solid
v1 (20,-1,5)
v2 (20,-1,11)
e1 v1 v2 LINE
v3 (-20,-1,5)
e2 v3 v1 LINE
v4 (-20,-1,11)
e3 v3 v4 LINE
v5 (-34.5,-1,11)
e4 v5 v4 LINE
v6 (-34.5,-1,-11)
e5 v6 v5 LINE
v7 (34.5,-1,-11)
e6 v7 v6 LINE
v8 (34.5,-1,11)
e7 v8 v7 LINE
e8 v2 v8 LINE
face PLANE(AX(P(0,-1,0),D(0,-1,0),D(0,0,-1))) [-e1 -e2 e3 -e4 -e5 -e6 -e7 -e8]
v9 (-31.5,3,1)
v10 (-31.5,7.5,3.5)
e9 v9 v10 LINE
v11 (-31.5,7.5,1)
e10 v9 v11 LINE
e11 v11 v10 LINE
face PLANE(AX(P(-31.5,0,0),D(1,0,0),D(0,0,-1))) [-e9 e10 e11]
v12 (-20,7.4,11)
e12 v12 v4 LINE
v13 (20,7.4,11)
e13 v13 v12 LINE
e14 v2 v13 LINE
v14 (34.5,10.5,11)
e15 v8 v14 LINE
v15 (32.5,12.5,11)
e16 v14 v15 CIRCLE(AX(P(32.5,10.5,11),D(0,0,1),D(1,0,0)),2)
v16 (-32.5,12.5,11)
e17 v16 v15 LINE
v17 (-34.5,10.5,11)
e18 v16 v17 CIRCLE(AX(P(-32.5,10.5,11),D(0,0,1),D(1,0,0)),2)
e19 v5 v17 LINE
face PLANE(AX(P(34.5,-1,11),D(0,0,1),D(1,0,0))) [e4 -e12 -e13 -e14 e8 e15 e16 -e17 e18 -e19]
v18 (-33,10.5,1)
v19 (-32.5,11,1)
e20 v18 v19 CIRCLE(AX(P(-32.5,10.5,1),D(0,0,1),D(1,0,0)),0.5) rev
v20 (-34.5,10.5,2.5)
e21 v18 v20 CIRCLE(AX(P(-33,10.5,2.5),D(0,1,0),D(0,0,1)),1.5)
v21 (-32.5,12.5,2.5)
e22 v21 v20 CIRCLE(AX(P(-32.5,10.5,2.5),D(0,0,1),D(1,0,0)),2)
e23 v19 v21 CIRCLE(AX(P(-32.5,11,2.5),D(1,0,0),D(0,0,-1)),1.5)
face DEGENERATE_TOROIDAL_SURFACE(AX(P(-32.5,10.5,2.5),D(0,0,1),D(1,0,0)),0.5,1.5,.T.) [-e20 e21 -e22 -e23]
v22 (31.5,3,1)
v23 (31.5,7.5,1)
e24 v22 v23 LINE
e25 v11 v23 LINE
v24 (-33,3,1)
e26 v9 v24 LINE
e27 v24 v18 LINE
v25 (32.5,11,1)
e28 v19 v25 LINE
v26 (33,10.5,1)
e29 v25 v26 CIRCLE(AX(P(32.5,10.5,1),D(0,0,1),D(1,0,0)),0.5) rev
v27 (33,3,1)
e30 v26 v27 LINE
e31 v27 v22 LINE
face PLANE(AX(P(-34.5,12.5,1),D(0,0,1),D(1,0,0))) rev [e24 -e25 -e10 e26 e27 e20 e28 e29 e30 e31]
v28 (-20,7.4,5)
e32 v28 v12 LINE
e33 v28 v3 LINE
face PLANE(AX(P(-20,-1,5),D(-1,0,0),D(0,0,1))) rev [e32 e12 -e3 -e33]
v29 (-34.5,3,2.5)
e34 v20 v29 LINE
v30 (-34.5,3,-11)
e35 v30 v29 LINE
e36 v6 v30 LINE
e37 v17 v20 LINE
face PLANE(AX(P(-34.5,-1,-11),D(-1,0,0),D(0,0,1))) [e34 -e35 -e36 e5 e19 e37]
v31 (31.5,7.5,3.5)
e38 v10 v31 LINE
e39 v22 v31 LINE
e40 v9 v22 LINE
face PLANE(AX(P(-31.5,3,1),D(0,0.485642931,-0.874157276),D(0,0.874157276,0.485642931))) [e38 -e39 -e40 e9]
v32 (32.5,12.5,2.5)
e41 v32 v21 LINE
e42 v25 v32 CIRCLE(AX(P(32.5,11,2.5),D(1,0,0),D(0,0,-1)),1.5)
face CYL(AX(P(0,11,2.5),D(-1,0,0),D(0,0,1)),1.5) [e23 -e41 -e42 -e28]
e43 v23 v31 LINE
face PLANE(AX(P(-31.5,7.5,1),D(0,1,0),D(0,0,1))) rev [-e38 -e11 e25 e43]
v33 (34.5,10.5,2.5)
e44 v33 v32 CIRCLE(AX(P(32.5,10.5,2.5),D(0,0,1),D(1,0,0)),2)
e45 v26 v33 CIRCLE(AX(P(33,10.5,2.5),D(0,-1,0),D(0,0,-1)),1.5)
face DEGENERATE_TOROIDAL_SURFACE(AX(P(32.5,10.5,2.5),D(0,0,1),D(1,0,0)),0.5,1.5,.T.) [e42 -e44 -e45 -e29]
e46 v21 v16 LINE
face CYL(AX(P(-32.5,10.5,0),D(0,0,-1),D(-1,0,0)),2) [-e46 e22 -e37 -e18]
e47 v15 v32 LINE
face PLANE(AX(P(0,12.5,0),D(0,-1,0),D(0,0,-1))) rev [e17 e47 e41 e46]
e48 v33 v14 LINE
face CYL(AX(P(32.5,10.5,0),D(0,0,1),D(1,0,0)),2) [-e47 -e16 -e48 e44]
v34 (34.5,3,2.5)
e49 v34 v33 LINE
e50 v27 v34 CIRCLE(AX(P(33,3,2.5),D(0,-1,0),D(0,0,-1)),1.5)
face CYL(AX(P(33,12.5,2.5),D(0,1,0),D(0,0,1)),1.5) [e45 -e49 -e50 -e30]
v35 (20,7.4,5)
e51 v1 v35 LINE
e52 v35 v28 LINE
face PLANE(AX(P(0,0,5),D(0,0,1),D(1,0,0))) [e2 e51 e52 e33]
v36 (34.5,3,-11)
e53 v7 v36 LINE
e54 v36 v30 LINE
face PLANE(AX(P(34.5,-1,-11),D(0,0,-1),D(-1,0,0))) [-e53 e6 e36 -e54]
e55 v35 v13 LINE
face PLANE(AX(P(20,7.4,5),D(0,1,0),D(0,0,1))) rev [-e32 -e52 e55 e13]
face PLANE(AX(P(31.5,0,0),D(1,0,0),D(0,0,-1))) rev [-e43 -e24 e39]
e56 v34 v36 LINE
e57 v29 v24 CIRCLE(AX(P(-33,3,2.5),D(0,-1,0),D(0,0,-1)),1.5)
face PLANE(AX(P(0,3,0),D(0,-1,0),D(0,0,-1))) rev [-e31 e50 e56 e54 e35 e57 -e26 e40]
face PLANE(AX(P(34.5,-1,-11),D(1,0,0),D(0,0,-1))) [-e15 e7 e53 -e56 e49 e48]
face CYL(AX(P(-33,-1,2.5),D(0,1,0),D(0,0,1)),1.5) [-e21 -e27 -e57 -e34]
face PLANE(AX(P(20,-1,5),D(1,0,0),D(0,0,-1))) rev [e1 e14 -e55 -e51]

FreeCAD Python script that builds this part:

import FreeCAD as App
import Part
import Sketcher


def edges_at(feature, points):
    """Names of the edges that pass closest to the given points."""
    edges = feature.Shape.Edges
    near = lambda p: min(range(len(edges)), key=lambda i: edges[i].distToShape(Part.Vertex(*p))[0])
    return sorted({f"Edge{near(p) + 1}" for p in points})

doc = App.newDocument("Part")
body = doc.addObject("PartDesign::Body", "Body")

sketch1 = body.newObject("Sketcher::SketchObject", "Sketch")
sketch1.AttachmentSupport = (doc.getObject("XZ_Plane"), [""])
sketch1.MapMode = "FlatFace"
sketch1.addGeometry([
    Part.LineSegment(App.Vector(-34, -11, 0), App.Vector(-34, 11, 0)),
    Part.LineSegment(App.Vector(-34, 11, 0), App.Vector(34, 11, 0)),
    Part.LineSegment(App.Vector(34, 11, 0), App.Vector(34, -11, 0)),
    Part.LineSegment(App.Vector(34, -11, 0), App.Vector(-34, -11, 0)),
], False)
sketch1.addConstraint([
    Sketcher.Constraint("Coincident", 0, 2, 1, 1),
    Sketcher.Constraint("Coincident", 1, 2, 2, 1),
    Sketcher.Constraint("Coincident", 2, 2, 3, 1),
    Sketcher.Constraint("Coincident", 3, 2, 0, 1),
    Sketcher.Constraint("Vertical", 0),
    Sketcher.Constraint("Horizontal", 1),
    Sketcher.Constraint("Vertical", 2),
    Sketcher.Constraint("Horizontal", 3),
    Sketcher.Constraint("Symmetric", 0, 2, 2, 2, -1, 1),
    Sketcher.Constraint("DistanceX", 1, 1, 1, 2, 69.0),
    Sketcher.Constraint("DistanceY", 0, 1, 0, 2, 22.0),
])
pad1 = body.newObject("PartDesign::Pad", "Pad")
pad1.Profile = sketch1
pad1.Type = "TwoLengths"
pad1.Length = 3
pad1.Length2 = 1
pad1.Reversed = True

sketch2 = body.newObject("Sketcher::SketchObject", "Sketch001")
sketch2.AttachmentSupport = (doc.getObject("XZ_Plane"), [""])
sketch2.MapMode = "FlatFace"
sketch2.AttachmentOffset = App.Placement(App.Vector(0, 0, -3), App.Rotation())
sketch2.addGeometry([
    Part.LineSegment(App.Vector(-34, 11, 0), App.Vector(34, 11, 0)),
    Part.LineSegment(App.Vector(34, 11, 0), App.Vector(34, 1, 0)),
    Part.LineSegment(App.Vector(34, 1, 0), App.Vector(-34, 1, 0)),
    Part.LineSegment(App.Vector(-34, 1, 0), App.Vector(-34, 11, 0)),
], False)
sketch2.addConstraint([
    Sketcher.Constraint("Coincident", 0, 2, 1, 1),
    Sketcher.Constraint("Coincident", 1, 2, 2, 1),
    Sketcher.Constraint("Coincident", 2, 2, 3, 1),
    Sketcher.Constraint("Coincident", 3, 2, 0, 1),
    Sketcher.Constraint("Horizontal", 0),
    Sketcher.Constraint("Vertical", 1),
    Sketcher.Constraint("Horizontal", 2),
    Sketcher.Constraint("Vertical", 3),
    Sketcher.Constraint("DistanceX", 0, 1, 0, 2, 69.0),
    Sketcher.Constraint("DistanceY", 1, 2, 1, 1, 10.0),
    Sketcher.Constraint("DistanceY", -1, 1, 0, 2, 11.0),
    Sketcher.Constraint("DistanceX", -1, 1, 0, 2, 34.5),
])
pad2 = body.newObject("PartDesign::Pad", "Pad001")
pad2.Profile = sketch2
pad2.Length = 9.5
pad2.Reversed = True

sketch3 = body.newObject("Sketcher::SketchObject", "Sketch002")
sketch3.AttachmentSupport = (doc.getObject("YZ_Plane"), [""])
sketch3.MapMode = "FlatFace"
sketch3.AttachmentOffset = App.Placement(App.Vector(0, 0, 31.5), App.Rotation())
sketch3.addGeometry([
    Part.LineSegment(App.Vector(7.5, 3.5, 0), App.Vector(3, 1, 0)),
    Part.LineSegment(App.Vector(3, 1, 0), App.Vector(7.5, 1, 0)),
    Part.LineSegment(App.Vector(7.5, 1, 0), App.Vector(7.5, 3.5, 0)),
], False)
sketch3.addConstraint([
    Sketcher.Constraint("Coincident", 0, 2, 1, 1),
    Sketcher.Constraint("Coincident", 1, 2, 2, 1),
    Sketcher.Constraint("Coincident", 2, 2, 0, 1),
    Sketcher.Constraint("Horizontal", 1),
    Sketcher.Constraint("Vertical", 2),
    Sketcher.Constraint("DistanceX", 1, 1, 1, 2, 4.5),
    Sketcher.Constraint("DistanceY", 2, 1, 2, 2, 2.5),
    Sketcher.Constraint("DistanceX", -1, 1, 0, 2, 3.0),
    Sketcher.Constraint("DistanceY", -1, 1, 0, 2, 1.0),
])
pocket1 = body.newObject("PartDesign::Pocket", "Pocket")
pocket1.Profile = sketch3
pocket1.Length = 63

sketch4 = body.newObject("Sketcher::SketchObject", "Sketch003")
sketch4.AttachmentSupport = (doc.getObject("XY_Plane"), [""])
sketch4.MapMode = "FlatFace"
sketch4.AttachmentOffset = App.Placement(App.Vector(0, 0, 11), App.Rotation())
sketch4.addGeometry([
    Part.LineSegment(App.Vector(-20, 7, 0), App.Vector(-20, -1, 0)),
    Part.LineSegment(App.Vector(-20, -1, 0), App.Vector(20, -1, 0)),
    Part.LineSegment(App.Vector(20, -1, 0), App.Vector(20, 7, 0)),
    Part.LineSegment(App.Vector(20, 7, 0), App.Vector(-20, 7, 0)),
], False)
sketch4.addConstraint([
    Sketcher.Constraint("Coincident", 0, 2, 1, 1),
    Sketcher.Constraint("Coincident", 1, 2, 2, 1),
    Sketcher.Constraint("Coincident", 2, 2, 3, 1),
    Sketcher.Constraint("Coincident", 3, 2, 0, 1),
    Sketcher.Constraint("Vertical", 0),
    Sketcher.Constraint("Horizontal", 1),
    Sketcher.Constraint("Vertical", 2),
    Sketcher.Constraint("Horizontal", 3),
    Sketcher.Constraint("DistanceX", 1, 1, 1, 2, 40.0),
    Sketcher.Constraint("DistanceY", 0, 2, 0, 1, 8.4),
    Sketcher.Constraint("DistanceX", 0, 2, -1, 1, 20.0),
    Sketcher.Constraint("DistanceY", 0, 2, -1, 1, 1.0),
])
pocket2 = body.newObject("PartDesign::Pocket", "Pocket001")
pocket2.Profile = sketch4
pocket2.Length = 6
doc.recompute()

fillet = body.newObject("PartDesign::Fillet", "Fillet")
fillet.Base = (pocket2, edges_at(pocket2, [(-34.5, 12.5, 6), (34.5, 12.5, 6)]))
fillet.Radius = 2
doc.recompute()

fillet2 = body.newObject("PartDesign::Fillet", "Fillet001")
fillet2.Base = (fillet, edges_at(fillet, [
    (0, 12.5, 1),
    (-34.5, 6.75, 1),
    (34.5, 6.75, 1),
    (33.914, 11.914, 1),
    (-33.914, 11.914, 1),
]))
fillet2.Radius = 1.5

doc.recompute()
